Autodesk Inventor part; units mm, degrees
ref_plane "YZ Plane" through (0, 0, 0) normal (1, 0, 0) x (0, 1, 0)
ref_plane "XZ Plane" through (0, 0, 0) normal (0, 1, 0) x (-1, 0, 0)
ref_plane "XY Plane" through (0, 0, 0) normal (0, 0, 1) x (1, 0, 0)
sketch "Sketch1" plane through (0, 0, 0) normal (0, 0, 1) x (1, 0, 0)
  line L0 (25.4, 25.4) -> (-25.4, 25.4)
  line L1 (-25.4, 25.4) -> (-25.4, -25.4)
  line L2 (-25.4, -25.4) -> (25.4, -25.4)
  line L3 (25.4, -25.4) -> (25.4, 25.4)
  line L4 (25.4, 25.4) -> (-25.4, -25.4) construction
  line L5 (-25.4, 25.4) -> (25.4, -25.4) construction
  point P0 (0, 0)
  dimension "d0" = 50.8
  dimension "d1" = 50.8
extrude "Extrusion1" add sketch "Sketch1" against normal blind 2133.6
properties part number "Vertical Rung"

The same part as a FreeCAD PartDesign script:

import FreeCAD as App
import Part
import Sketcher
Q = App.Units.Quantity

doc = App.newDocument("Part")
body = doc.addObject("PartDesign::Body", "Body")

# Sketch on XY plane
sketch1 = doc.addObject("Sketcher::SketchObject", "Sketch")
body.addObject(sketch1)
sketch1.AttachmentSupport = (doc.XY_Plane, [""])
sketch1.MapMode = "FlatFace"
sketch1.addGeometry(Part.LineSegment(App.Vector(25, -25, 0), App.Vector(25, 25, 0)), False)
sketch1.addGeometry(Part.LineSegment(App.Vector(25, 25, 0), App.Vector(-25, 25, 0)), False)
sketch1.addGeometry(Part.LineSegment(App.Vector(-25, 25, 0), App.Vector(-25, -25, 0)), False)
sketch1.addGeometry(Part.LineSegment(App.Vector(-25, -25, 0), App.Vector(25, -25, 0)), False)
sketch1.addConstraint(Sketcher.Constraint("Coincident", 0, 2, 1, 1))
sketch1.addConstraint(Sketcher.Constraint("Coincident", 1, 2, 2, 1))
sketch1.addConstraint(Sketcher.Constraint("Coincident", 2, 2, 3, 1))
sketch1.addConstraint(Sketcher.Constraint("Coincident", 3, 2, 0, 1))
sketch1.addConstraint(Sketcher.Constraint("Vertical", 0))
sketch1.addConstraint(Sketcher.Constraint("Horizontal", 1))
sketch1.addConstraint(Sketcher.Constraint("Vertical", 2))
sketch1.addConstraint(Sketcher.Constraint("Horizontal", 3))
sketch1.addConstraint(Sketcher.Constraint("Symmetric", 0, 2, 2, 2, -1, 1))
sketch1.addConstraint(Sketcher.Constraint("Equal", 3, 0))
sketch1.addConstraint(Sketcher.Constraint("DistanceX", 1, 2, 1, 1, Q("2 in")))
pad1 = doc.addObject("PartDesign::Pad", "Pad")
body.addObject(pad1)
pad1.Profile = sketch1
pad1.Length = Q("84 in")
pad1.Reversed = True

doc.recompute()
